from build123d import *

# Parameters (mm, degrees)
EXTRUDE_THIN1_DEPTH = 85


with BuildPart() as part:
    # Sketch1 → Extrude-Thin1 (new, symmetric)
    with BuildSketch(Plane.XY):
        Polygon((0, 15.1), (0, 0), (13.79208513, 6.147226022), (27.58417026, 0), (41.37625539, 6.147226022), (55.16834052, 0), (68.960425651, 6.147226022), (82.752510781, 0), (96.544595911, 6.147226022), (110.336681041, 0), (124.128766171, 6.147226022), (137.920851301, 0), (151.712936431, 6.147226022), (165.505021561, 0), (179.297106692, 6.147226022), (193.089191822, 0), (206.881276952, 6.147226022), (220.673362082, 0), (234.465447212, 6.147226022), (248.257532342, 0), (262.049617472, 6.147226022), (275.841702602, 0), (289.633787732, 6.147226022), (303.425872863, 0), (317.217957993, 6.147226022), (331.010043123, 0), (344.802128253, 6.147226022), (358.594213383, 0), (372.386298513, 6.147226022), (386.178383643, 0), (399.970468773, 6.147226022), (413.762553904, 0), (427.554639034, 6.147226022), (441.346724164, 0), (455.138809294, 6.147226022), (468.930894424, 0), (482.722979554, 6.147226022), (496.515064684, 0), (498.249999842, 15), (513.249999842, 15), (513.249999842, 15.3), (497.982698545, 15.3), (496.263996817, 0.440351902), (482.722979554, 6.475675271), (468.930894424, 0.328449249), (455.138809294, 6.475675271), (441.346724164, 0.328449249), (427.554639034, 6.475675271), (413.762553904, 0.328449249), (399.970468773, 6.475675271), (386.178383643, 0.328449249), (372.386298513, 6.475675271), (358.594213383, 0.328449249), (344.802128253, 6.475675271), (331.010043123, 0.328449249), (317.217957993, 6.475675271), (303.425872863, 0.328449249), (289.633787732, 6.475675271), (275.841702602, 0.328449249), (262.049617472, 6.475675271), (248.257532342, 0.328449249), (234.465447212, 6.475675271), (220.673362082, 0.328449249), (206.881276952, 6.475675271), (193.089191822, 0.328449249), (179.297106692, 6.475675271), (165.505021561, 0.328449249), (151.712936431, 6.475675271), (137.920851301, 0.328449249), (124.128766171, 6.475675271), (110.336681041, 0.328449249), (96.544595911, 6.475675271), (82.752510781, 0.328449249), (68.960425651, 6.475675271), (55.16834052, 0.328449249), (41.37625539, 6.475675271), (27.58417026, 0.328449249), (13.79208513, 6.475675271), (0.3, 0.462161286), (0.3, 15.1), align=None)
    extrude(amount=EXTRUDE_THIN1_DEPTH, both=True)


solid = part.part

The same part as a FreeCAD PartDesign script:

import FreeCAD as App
import Part
import Sketcher

V = App.Vector
Q = App.Units.Quantity


def add_polygon(sketch, points):
    """Adds a closed chain of lines whose ends are joined by coincident constraints."""
    first, n = sketch.GeometryCount, len(points)
    for a, b in zip(points, points[1:] + points[:1]):
        sketch.addGeometry(Part.LineSegment(App.Vector(*a, 0), App.Vector(*b, 0)), False)
    for i in range(n):
        sketch.addConstraint(Sketcher.Constraint("Coincident", first + i, 2, first + (i + 1) % n, 1))

doc = App.newDocument("Part")
body = doc.addObject("PartDesign::Body", "Body")

# Sketch on XY plane
sketch1 = body.newObject("Sketcher::SketchObject", "Sketch")
sketch1.AttachmentSupport = (doc.getObject("XY_Plane"), [""])
sketch1.MapMode = "FlatFace"
add_polygon(sketch1, [(0, 15.1), (0, 0), (13.792085, 6.147226), (27.58417, 0), (41.376255, 6.147226), (55.168341, 0), (68.960426, 6.147226), (82.752511, 0), (96.544596, 6.147226), (110.336681, 0), (124.128766, 6.147226), (137.920851, 0), (151.712936, 6.147226), (165.505022, 0), (179.297107, 6.147226), (193.089192, 0), (206.881277, 6.147226), (220.673362, 0), (234.465447, 6.147226), (248.257532, 0), (262.049617, 6.147226), (275.841703, 0), (289.633788, 6.147226), (303.425873, 0), (317.217958, 6.147226), (331.010043, 0), (344.802128, 6.147226), (358.594213, 0), (372.386299, 6.147226), (386.178384, 0), (399.970469, 6.147226), (413.762554, 0), (427.554639, 6.147226), (441.346724, 0), (455.138809, 6.147226), (468.930894, 0), (482.72298, 6.147226), (496.515065, 0), (498.25, 15), (513.25, 15), (513.25, 15.3), (497.982699, 15.3), (496.263997, 0.440352), (482.72298, 6.475675), (468.930894, 0.328449), (455.138809, 6.475675), (441.346724, 0.328449), (427.554639, 6.475675), (413.762554, 0.328449), (399.970469, 6.475675), (386.178384, 0.328449), (372.386299, 6.475675), (358.594213, 0.328449), (344.802128, 6.475675), (331.010043, 0.328449), (317.217958, 6.475675), (303.425873, 0.328449), (289.633788, 6.475675), (275.841703, 0.328449), (262.049617, 6.475675), (248.257532, 0.328449), (234.465447, 6.475675), (220.673362, 0.328449), (206.881277, 6.475675), (193.089192, 0.328449), (179.297107, 6.475675), (165.505022, 0.328449), (151.712936, 6.475675), (137.920851, 0.328449), (124.128766, 6.475675), (110.336681, 0.328449), (96.544596, 6.475675), (82.752511, 0.328449), (68.960426, 6.475675), (55.168341, 0.328449), (41.376255, 6.475675), (27.58417, 0.328449), (13.792085, 6.475675), (0.3, 0.462161), (0.3, 15.1)])  # lines 0-79
sketch1.addConstraint([
    Sketcher.Constraint("Vertical", 0),
    Sketcher.Constraint("Horizontal", 38),
    Sketcher.Constraint("Vertical", 39),
    Sketcher.Constraint("Horizontal", 40),
    Sketcher.Constraint("Vertical", 78),
    Sketcher.Constraint("Horizontal", 79),
    Sketcher.Constraint("Coincident", 0, 2, -1, 1),
    Sketcher.Constraint("PointOnObject", 2, 2, -1),
    Sketcher.Constraint("PointOnObject", 4, 2, -1),
    Sketcher.Constraint("PointOnObject", 6, 2, -1),
    Sketcher.Constraint("PointOnObject", 8, 2, -1),
    Sketcher.Constraint("PointOnObject", 10, 2, -1),
    Sketcher.Constraint("PointOnObject", 12, 2, -1),
    Sketcher.Constraint("PointOnObject", 14, 2, -1),
    Sketcher.Constraint("PointOnObject", 16, 2, -1),
    Sketcher.Constraint("PointOnObject", 18, 2, -1),
    Sketcher.Constraint("PointOnObject", 20, 2, -1),
    Sketcher.Constraint("PointOnObject", 22, 2, -1),
    Sketcher.Constraint("PointOnObject", 24, 2, -1),
    Sketcher.Constraint("PointOnObject", 26, 2, -1),
    Sketcher.Constraint("PointOnObject", 28, 2, -1),
    Sketcher.Constraint("PointOnObject", 30, 2, -1),
    Sketcher.Constraint("PointOnObject", 32, 2, -1),
    Sketcher.Constraint("PointOnObject", 34, 2, -1),
    Sketcher.Constraint("PointOnObject", 36, 2, -1),
    Sketcher.Constraint("Parallel", 1, 3),
    Sketcher.Constraint("Parallel", 2, 4),
    Sketcher.Constraint("Parallel", 3, 5),
    Sketcher.Constraint("Parallel", 4, 6),
    Sketcher.Constraint("Parallel", 5, 7),
    Sketcher.Constraint("Parallel", 6, 8),
    Sketcher.Constraint("Parallel", 7, 9),
    Sketcher.Constraint("Parallel", 8, 10),
    Sketcher.Constraint("Parallel", 9, 11),
    Sketcher.Constraint("Parallel", 10, 12),
    Sketcher.Constraint("Parallel", 11, 13),
    Sketcher.Constraint("Parallel", 12, 14),
    Sketcher.Constraint("Parallel", 13, 15),
    Sketcher.Constraint("Parallel", 14, 16),
    Sketcher.Constraint("Parallel", 15, 17),
    Sketcher.Constraint("Parallel", 16, 18),
    Sketcher.Constraint("Parallel", 17, 19),
    Sketcher.Constraint("Parallel", 18, 20),
    Sketcher.Constraint("Parallel", 19, 21),
    Sketcher.Constraint("Parallel", 20, 22),
    Sketcher.Constraint("Parallel", 21, 23),
    Sketcher.Constraint("Parallel", 22, 24),
    Sketcher.Constraint("Parallel", 23, 25),
    Sketcher.Constraint("Parallel", 24, 26),
    Sketcher.Constraint("Parallel", 25, 27),
    Sketcher.Constraint("Parallel", 26, 28),
    Sketcher.Constraint("Parallel", 27, 29),
    Sketcher.Constraint("Parallel", 28, 30),
    Sketcher.Constraint("Parallel", 29, 31),
    Sketcher.Constraint("Parallel", 30, 32),
    Sketcher.Constraint("Parallel", 31, 33),
    Sketcher.Constraint("Parallel", 32, 34),
    Sketcher.Constraint("Parallel", 33, 35),
    Sketcher.Constraint("Parallel", 34, 36),
    Sketcher.Constraint("Parallel", 37, 41),
    Sketcher.Constraint("Parallel", 36, 42),
    Sketcher.Constraint("Parallel", 35, 43),
    Sketcher.Constraint("Parallel", 42, 44),
    Sketcher.Constraint("Parallel", 43, 45),
    Sketcher.Constraint("Parallel", 44, 46),
    Sketcher.Constraint("Parallel", 45, 47),
    Sketcher.Constraint("Parallel", 46, 48),
    Sketcher.Constraint("Parallel", 47, 49),
    Sketcher.Constraint("Parallel", 48, 50),
    Sketcher.Constraint("Parallel", 49, 51),
    Sketcher.Constraint("Parallel", 50, 52),
    Sketcher.Constraint("Parallel", 51, 53),
    Sketcher.Constraint("Parallel", 52, 54),
    Sketcher.Constraint("Parallel", 53, 55),
    Sketcher.Constraint("Parallel", 54, 56),
    Sketcher.Constraint("Parallel", 55, 57),
    Sketcher.Constraint("Parallel", 56, 58),
    Sketcher.Constraint("Parallel", 57, 59),
    Sketcher.Constraint("Parallel", 58, 60),
    Sketcher.Constraint("Parallel", 59, 61),
    Sketcher.Constraint("Parallel", 60, 62),
    Sketcher.Constraint("Parallel", 61, 63),
    Sketcher.Constraint("Parallel", 62, 64),
    Sketcher.Constraint("Parallel", 63, 65),
    Sketcher.Constraint("Parallel", 64, 66),
    Sketcher.Constraint("Parallel", 65, 67),
    Sketcher.Constraint("Parallel", 66, 68),
    Sketcher.Constraint("Parallel", 67, 69),
    Sketcher.Constraint("Parallel", 68, 70),
    Sketcher.Constraint("Parallel", 69, 71),
    Sketcher.Constraint("Parallel", 70, 72),
    Sketcher.Constraint("Parallel", 71, 73),
    Sketcher.Constraint("Parallel", 72, 74),
    Sketcher.Constraint("Parallel", 73, 75),
    Sketcher.Constraint("Parallel", 74, 76),
    Sketcher.Constraint("Parallel", 75, 77),
    Sketcher.Constraint("Horizontal", 1, 2, 3, 2),
    Sketcher.Constraint("Horizontal", 3, 2, 5, 2),
    Sketcher.Constraint("Horizontal", 5, 2, 7, 2),
    Sketcher.Constraint("Horizontal", 7, 2, 9, 2),
    Sketcher.Constraint("Horizontal", 9, 2, 11, 2),
    Sketcher.Constraint("Horizontal", 11, 2, 13, 2),
    Sketcher.Constraint("Horizontal", 13, 2, 15, 2),
    Sketcher.Constraint("Horizontal", 15, 2, 17, 2),
    Sketcher.Constraint("Horizontal", 17, 2, 19, 2),
    Sketcher.Constraint("Horizontal", 19, 2, 21, 2),
    Sketcher.Constraint("Horizontal", 21, 2, 23, 2),
    Sketcher.Constraint("Horizontal", 23, 2, 25, 2),
    Sketcher.Constraint("Horizontal", 25, 2, 27, 2),
    Sketcher.Constraint("Horizontal", 27, 2, 29, 2),
    Sketcher.Constraint("Horizontal", 29, 2, 31, 2),
    Sketcher.Constraint("Horizontal", 31, 2, 33, 2),
    Sketcher.Constraint("Horizontal", 33, 2, 35, 2),
    Sketcher.Constraint("Horizontal", 42, 2, 44, 2),
    Sketcher.Constraint("Horizontal", 43, 2, 45, 2),
    Sketcher.Constraint("Horizontal", 44, 2, 46, 2),
    Sketcher.Constraint("Horizontal", 45, 2, 47, 2),
    Sketcher.Constraint("Horizontal", 46, 2, 48, 2),
    Sketcher.Constraint("Horizontal", 47, 2, 49, 2),
    Sketcher.Constraint("Horizontal", 48, 2, 50, 2),
    Sketcher.Constraint("Horizontal", 49, 2, 51, 2),
    Sketcher.Constraint("Horizontal", 50, 2, 52, 2),
    Sketcher.Constraint("Horizontal", 51, 2, 53, 2),
    Sketcher.Constraint("Horizontal", 52, 2, 54, 2),
    Sketcher.Constraint("Horizontal", 53, 2, 55, 2),
    Sketcher.Constraint("Horizontal", 54, 2, 56, 2),
    Sketcher.Constraint("Horizontal", 55, 2, 57, 2),
    Sketcher.Constraint("Horizontal", 56, 2, 58, 2),
    Sketcher.Constraint("Horizontal", 57, 2, 59, 2),
    Sketcher.Constraint("Horizontal", 58, 2, 60, 2),
    Sketcher.Constraint("Horizontal", 59, 2, 61, 2),
    Sketcher.Constraint("Horizontal", 60, 2, 62, 2),
    Sketcher.Constraint("Horizontal", 61, 2, 63, 2),
    Sketcher.Constraint("Horizontal", 62, 2, 64, 2),
    Sketcher.Constraint("Horizontal", 63, 2, 65, 2),
    Sketcher.Constraint("Horizontal", 64, 2, 66, 2),
    Sketcher.Constraint("Horizontal", 65, 2, 67, 2),
    Sketcher.Constraint("Horizontal", 66, 2, 68, 2),
    Sketcher.Constraint("Horizontal", 67, 2, 69, 2),
    Sketcher.Constraint("Horizontal", 68, 2, 70, 2),
    Sketcher.Constraint("Horizontal", 69, 2, 71, 2),
    Sketcher.Constraint("Horizontal", 70, 2, 72, 2),
    Sketcher.Constraint("Horizontal", 71, 2, 73, 2),
    Sketcher.Constraint("Horizontal", 72, 2, 74, 2),
    Sketcher.Constraint("Horizontal", 73, 2, 75, 2),
    Sketcher.Constraint("Horizontal", 74, 2, 76, 2),
    Sketcher.Constraint("Vertical", 35, 2, 42, 2),
    Sketcher.Constraint("Vertical", 34, 2, 43, 2),
    Sketcher.Constraint("Equal", 79, 39),
    Sketcher.Constraint("Equal", 1, 2),
    Sketcher.Constraint("Equal", 36, 37),
    Sketcher.Constraint("DistanceX", 38, 1, 38, 2, Q("15 mm")),
    Sketcher.Constraint("DistanceX", 79, 2, 79, 1, Q("0.3 mm")),
    Sketcher.Constraint("DistanceY", 0, 2, 0, 1, Q("15.1 mm")),
    Sketcher.Constraint("DistanceY", -1, 1, 37, 2, Q("15 mm")),
    Sketcher.Constraint("Distance", 1, Q("15.1 mm")),
    Sketcher.Constraint("DistanceX", -1, 1, 37, 2, Q("498.25 mm")),
    Sketcher.Constraint("DistanceX", 40, 2, 40, 1, Q("15.267301 mm")),
    Sketcher.Constraint("DistanceY", 78, 1, 78, 2, Q("14.637839 mm")),
])
pad1 = body.newObject("PartDesign::Pad", "Pad")
pad1.Profile = sketch1
pad1.Length = 170
pad1.Midplane = True

doc.recompute()
